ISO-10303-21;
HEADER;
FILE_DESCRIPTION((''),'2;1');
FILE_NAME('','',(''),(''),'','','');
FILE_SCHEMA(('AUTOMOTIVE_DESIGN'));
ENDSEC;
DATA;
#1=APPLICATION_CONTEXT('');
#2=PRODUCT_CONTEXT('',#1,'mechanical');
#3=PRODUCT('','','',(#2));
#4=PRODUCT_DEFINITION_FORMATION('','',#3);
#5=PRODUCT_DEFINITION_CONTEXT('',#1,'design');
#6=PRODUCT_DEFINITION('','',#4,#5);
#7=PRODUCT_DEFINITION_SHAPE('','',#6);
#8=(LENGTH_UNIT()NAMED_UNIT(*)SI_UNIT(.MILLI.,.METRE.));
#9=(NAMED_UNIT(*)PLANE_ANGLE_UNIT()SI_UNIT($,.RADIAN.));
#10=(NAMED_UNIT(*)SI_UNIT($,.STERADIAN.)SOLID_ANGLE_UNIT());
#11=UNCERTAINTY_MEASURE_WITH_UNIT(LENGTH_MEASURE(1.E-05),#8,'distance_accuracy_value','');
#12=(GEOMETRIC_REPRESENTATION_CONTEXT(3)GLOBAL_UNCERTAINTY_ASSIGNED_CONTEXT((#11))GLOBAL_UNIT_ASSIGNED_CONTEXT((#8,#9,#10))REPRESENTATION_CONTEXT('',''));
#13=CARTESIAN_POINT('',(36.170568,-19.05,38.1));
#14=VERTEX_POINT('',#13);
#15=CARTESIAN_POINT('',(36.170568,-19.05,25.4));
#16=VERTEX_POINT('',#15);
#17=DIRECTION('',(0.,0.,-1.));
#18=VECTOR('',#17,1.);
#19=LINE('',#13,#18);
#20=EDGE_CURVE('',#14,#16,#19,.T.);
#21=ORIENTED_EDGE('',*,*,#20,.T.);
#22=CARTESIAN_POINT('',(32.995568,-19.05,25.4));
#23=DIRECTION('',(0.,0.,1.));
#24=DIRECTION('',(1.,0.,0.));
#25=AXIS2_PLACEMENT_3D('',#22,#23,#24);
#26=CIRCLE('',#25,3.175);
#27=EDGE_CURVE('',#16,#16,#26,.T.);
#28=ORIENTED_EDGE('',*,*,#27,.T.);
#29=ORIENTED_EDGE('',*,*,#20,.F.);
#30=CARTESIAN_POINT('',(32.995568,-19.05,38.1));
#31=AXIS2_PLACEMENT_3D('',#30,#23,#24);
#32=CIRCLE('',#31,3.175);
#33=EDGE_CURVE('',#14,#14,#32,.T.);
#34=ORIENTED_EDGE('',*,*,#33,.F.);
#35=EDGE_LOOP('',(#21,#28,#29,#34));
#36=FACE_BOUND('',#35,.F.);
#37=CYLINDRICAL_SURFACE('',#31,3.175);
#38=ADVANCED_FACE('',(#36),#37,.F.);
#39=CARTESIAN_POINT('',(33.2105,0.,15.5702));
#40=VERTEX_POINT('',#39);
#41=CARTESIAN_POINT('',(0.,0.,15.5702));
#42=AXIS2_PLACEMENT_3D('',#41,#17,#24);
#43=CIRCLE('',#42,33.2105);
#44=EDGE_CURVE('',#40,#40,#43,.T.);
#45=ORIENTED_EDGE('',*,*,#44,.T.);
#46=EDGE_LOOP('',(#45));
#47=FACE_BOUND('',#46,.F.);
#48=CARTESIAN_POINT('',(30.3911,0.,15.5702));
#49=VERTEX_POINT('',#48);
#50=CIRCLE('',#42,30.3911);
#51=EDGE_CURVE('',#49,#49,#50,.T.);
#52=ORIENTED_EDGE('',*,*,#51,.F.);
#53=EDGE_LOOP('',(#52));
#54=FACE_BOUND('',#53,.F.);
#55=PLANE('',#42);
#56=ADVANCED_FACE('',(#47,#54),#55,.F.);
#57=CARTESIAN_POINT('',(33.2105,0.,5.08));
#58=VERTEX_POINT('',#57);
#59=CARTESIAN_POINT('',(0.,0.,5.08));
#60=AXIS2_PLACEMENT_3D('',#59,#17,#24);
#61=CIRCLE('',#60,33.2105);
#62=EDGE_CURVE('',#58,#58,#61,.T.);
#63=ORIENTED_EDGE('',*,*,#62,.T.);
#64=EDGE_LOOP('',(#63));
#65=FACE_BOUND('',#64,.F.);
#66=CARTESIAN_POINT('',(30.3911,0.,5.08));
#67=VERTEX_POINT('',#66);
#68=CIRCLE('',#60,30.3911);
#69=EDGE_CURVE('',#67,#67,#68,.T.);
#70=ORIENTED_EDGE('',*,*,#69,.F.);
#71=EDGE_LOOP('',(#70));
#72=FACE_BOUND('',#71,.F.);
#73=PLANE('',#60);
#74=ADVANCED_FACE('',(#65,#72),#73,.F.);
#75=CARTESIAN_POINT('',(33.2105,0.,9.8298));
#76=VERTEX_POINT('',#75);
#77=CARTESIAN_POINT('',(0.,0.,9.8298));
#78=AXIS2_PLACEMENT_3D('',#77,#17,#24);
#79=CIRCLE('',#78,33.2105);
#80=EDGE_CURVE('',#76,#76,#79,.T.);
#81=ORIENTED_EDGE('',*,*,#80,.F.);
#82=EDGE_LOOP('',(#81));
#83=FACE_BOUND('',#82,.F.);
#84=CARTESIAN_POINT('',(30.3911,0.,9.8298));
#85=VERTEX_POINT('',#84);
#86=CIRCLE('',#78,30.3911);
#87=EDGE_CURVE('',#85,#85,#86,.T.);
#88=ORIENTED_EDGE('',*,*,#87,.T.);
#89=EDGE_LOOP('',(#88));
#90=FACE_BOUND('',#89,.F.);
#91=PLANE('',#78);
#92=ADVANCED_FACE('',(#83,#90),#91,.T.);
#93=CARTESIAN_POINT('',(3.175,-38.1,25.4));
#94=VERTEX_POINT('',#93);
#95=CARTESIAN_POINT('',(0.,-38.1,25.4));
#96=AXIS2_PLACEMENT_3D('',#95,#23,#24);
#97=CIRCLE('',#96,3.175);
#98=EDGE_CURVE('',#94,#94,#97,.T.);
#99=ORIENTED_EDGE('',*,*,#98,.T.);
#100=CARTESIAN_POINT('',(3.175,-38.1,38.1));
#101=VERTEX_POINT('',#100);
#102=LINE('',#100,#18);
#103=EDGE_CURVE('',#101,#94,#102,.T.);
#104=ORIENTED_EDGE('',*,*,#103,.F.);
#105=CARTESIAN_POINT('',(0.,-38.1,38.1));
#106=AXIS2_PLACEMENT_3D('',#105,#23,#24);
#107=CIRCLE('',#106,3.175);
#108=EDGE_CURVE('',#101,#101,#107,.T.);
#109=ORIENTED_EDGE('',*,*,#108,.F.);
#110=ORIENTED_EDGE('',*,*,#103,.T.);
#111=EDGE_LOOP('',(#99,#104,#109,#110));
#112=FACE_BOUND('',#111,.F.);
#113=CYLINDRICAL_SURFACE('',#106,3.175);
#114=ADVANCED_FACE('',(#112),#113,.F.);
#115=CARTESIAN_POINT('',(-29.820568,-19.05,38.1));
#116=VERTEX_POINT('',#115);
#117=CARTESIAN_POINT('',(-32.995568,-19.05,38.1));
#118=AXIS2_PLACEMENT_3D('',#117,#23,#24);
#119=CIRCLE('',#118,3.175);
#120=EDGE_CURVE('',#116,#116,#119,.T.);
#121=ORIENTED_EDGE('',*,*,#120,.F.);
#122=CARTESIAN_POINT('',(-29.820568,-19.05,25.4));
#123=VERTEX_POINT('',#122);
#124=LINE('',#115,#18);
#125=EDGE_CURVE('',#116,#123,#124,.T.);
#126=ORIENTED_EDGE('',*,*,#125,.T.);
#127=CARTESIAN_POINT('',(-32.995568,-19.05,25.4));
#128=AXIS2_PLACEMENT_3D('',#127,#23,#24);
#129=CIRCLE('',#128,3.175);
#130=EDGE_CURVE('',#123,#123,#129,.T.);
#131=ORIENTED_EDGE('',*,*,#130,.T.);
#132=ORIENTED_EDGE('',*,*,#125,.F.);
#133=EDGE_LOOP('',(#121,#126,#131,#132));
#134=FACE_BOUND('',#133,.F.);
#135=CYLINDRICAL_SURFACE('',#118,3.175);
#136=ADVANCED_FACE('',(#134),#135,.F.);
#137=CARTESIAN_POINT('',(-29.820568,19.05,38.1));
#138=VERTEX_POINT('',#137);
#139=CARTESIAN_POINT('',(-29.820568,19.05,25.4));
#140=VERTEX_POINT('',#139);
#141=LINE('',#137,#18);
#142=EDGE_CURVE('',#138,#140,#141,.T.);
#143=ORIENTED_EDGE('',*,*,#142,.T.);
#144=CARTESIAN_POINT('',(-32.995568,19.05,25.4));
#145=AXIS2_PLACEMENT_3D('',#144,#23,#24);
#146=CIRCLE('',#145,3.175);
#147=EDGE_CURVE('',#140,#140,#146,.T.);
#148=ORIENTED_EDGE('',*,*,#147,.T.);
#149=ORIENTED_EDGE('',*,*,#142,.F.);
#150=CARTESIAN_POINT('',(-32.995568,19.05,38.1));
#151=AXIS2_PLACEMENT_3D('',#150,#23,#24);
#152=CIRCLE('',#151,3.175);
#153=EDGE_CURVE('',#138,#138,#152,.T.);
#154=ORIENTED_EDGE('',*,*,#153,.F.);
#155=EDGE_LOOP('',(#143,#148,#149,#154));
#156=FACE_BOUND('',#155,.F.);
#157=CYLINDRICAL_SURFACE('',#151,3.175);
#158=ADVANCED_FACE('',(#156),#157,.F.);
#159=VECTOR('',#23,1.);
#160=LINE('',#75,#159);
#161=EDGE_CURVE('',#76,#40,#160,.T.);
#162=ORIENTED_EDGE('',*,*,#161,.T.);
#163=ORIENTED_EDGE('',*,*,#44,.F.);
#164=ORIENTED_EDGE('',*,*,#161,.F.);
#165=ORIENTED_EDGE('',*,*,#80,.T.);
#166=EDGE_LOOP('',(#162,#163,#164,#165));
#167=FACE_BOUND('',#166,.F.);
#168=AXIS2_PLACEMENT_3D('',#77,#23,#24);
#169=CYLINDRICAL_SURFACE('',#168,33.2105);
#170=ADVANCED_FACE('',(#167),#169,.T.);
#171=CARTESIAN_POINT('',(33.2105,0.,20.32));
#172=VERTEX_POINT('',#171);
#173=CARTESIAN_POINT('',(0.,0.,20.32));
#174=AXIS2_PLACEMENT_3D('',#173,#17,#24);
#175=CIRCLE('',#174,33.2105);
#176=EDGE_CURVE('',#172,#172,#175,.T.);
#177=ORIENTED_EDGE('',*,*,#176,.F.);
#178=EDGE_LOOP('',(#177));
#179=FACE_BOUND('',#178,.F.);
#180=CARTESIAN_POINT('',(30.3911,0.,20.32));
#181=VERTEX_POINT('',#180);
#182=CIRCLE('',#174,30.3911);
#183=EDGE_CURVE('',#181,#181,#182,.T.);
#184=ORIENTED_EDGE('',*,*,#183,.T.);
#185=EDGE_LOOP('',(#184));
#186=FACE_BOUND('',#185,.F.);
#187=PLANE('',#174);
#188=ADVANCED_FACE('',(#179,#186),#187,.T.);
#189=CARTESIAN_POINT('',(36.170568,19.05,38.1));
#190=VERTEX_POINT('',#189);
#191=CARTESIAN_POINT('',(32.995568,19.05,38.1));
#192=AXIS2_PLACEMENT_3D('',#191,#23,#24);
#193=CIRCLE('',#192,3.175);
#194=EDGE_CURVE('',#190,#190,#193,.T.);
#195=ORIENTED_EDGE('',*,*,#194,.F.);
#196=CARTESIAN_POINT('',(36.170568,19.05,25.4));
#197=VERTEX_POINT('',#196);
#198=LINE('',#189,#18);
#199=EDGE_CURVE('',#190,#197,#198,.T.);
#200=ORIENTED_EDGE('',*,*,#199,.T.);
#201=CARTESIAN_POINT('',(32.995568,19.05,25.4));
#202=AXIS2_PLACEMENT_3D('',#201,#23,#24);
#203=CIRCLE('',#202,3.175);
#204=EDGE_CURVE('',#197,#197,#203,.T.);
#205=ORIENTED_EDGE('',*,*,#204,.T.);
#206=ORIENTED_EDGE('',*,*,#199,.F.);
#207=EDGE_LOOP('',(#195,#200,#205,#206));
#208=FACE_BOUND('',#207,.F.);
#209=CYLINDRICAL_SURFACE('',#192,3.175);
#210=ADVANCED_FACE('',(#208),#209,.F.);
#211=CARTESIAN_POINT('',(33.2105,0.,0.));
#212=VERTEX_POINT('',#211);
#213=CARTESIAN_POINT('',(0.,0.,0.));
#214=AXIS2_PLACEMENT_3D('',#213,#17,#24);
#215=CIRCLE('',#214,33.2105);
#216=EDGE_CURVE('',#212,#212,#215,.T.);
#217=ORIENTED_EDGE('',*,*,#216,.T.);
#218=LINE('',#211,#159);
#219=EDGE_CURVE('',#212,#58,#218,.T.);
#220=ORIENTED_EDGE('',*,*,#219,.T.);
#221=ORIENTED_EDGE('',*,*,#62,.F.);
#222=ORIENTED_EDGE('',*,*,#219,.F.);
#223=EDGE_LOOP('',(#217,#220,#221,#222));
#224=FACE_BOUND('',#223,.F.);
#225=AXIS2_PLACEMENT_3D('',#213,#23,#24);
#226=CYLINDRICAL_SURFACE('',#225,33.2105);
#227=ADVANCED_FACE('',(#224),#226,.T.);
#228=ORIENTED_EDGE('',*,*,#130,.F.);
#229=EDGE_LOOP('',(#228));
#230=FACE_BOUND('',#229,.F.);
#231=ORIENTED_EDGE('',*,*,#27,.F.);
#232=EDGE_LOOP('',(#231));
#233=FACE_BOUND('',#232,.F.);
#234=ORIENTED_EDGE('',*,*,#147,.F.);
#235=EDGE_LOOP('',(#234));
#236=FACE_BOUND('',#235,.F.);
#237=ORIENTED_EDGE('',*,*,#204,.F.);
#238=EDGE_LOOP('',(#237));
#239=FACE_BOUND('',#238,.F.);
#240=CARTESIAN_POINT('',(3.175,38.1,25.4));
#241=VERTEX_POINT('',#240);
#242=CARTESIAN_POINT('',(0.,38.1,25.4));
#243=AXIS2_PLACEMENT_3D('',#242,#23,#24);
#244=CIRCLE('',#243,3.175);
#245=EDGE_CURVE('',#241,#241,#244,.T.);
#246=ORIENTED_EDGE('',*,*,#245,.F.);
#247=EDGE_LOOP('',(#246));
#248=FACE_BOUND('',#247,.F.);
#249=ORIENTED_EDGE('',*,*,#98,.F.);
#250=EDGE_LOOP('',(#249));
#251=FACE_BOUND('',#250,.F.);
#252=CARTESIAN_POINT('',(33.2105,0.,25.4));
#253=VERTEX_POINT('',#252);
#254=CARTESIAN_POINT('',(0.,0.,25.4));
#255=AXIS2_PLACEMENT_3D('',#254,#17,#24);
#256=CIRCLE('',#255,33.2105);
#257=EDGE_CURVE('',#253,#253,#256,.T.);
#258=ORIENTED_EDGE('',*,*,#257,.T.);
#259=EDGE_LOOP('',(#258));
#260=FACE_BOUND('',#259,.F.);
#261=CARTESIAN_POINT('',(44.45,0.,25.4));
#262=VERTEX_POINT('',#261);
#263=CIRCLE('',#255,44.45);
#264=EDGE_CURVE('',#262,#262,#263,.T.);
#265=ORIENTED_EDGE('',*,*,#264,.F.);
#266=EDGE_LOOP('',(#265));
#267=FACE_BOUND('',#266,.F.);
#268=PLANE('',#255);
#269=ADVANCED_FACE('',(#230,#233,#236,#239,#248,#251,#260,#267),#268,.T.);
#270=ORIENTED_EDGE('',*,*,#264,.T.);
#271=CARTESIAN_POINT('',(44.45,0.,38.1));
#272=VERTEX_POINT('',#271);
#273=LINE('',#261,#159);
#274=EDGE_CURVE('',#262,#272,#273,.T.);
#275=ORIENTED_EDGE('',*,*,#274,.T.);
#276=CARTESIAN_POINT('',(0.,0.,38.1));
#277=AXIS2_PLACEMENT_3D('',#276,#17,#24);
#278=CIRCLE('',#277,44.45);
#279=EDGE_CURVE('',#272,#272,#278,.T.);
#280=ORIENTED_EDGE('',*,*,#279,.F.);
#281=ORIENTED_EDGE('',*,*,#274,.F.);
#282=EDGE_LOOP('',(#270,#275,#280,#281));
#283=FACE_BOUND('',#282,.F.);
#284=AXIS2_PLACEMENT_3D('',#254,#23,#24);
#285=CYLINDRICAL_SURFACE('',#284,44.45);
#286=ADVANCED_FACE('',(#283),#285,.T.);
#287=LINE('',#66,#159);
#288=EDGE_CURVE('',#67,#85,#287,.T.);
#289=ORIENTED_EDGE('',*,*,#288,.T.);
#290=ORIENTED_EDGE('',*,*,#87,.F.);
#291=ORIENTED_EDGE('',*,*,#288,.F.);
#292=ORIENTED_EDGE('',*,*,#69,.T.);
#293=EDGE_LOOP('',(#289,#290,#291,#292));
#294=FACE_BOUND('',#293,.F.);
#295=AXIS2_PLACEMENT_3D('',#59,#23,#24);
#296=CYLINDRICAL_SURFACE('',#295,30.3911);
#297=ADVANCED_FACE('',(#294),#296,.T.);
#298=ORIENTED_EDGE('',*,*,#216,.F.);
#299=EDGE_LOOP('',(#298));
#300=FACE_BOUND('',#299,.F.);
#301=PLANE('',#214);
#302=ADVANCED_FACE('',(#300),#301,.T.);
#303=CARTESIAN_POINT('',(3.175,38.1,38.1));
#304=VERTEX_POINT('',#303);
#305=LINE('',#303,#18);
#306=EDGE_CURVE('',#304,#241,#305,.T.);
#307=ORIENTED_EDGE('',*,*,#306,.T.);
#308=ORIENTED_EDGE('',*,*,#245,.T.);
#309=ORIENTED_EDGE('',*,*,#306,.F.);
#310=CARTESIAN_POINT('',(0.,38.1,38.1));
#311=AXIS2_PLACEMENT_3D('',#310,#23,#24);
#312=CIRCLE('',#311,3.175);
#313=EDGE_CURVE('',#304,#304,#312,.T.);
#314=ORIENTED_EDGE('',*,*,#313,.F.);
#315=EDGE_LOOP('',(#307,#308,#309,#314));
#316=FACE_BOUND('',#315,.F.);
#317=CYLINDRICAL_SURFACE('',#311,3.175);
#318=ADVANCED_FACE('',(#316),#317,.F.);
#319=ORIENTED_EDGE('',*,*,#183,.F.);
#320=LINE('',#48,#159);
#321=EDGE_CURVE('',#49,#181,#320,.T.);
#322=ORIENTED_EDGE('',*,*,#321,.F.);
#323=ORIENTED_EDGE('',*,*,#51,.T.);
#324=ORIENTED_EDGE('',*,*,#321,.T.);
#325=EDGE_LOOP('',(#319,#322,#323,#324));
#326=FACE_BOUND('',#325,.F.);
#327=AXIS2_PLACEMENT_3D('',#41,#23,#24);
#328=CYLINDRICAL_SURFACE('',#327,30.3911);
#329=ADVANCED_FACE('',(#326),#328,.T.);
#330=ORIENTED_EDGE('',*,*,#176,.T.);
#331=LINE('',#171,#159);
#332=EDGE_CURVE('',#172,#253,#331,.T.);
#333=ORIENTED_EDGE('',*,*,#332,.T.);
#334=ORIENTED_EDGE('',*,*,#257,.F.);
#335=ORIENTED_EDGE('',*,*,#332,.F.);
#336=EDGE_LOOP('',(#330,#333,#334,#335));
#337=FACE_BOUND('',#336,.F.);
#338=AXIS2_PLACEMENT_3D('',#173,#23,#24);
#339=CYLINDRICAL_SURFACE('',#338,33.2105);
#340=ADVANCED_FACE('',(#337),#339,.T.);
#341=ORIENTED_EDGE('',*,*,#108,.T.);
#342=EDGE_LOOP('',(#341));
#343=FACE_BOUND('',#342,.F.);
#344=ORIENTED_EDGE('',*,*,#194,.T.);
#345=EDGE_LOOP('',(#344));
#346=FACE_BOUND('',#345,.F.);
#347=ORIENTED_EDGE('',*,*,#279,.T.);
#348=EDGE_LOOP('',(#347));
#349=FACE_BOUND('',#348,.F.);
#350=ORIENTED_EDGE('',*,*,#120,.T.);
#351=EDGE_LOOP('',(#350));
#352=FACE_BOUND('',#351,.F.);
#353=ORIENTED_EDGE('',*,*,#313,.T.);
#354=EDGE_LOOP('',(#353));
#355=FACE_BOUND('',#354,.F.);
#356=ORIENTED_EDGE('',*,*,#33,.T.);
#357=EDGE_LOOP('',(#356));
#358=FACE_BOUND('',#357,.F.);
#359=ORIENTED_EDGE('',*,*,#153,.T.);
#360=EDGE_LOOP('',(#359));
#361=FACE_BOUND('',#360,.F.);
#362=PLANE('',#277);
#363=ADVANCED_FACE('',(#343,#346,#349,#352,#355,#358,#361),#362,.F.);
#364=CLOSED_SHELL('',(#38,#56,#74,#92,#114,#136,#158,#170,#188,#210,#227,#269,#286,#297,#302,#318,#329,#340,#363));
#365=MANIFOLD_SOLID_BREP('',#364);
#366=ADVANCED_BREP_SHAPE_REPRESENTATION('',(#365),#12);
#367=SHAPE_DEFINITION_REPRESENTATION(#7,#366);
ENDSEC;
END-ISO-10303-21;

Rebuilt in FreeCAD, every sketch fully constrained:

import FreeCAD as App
import Part
import Sketcher

V = App.Vector
Q = App.Units.Quantity


def add_polygon(sketch, points):
    """Adds a closed chain of lines whose ends are joined by coincident constraints."""
    first, n = sketch.GeometryCount, len(points)
    for a, b in zip(points, points[1:] + points[:1]):
        sketch.addGeometry(Part.LineSegment(App.Vector(*a, 0), App.Vector(*b, 0)), False)
    for i in range(n):
        sketch.addConstraint(Sketcher.Constraint("Coincident", first + i, 2, first + (i + 1) % n, 1))

doc = App.newDocument("Part")
params = doc.addObject("Spreadsheet::Sheet", "Params")
for row, (alias, value) in enumerate([
    ("sketch1_height", "1.5 in"),
    ("sketch1_height2", "0.2 in"),
    ("sketch1_height3", "0.5 in"),
    ("sketch1_width", "1.75 in"),
    ("sketch1_width2", "0.111 in"),
    ("revolution_angle", "360 deg"),
    ("sketch2_diameter", "0.25 in"),
    ("pocket1_length", "1 in"),
], start=1):
    params.set(f"A{row}", alias)
    params.set(f"B{row}", "=" + value)
    params.setAlias(f"B{row}", alias)

body = doc.addObject("PartDesign::Body", "Body")

sketch1 = body.newObject("Sketcher::SketchObject", "Sketch")
sketch1.AttachmentSupport = (doc.getObject("XZ_Plane"), [""])
sketch1.MapMode = "FlatFace"
add_polygon(sketch1, [(44.45, 38.1), (0, 38.1), (0, 0), (33.2105, 0), (33.2105, 5.08), (30.3911, 5.08), (30.3911, 9.8298), (33.2105, 9.8298), (33.2105, 15.5702), (30.3911, 15.5702), (30.3911, 20.32), (33.2105, 20.32), (33.2105, 25.4), (44.45, 25.4)])
sketch1.addConstraint(Sketcher.Constraint("Horizontal", 0))
sketch1.addConstraint(Sketcher.Constraint("Vertical", 1))
sketch1.addConstraint(Sketcher.Constraint("Horizontal", 2))
sketch1.addConstraint(Sketcher.Constraint("Vertical", 3))
sketch1.addConstraint(Sketcher.Constraint("Horizontal", 4))
sketch1.addConstraint(Sketcher.Constraint("Vertical", 5))
sketch1.addConstraint(Sketcher.Constraint("Horizontal", 6))
sketch1.addConstraint(Sketcher.Constraint("Vertical", 7))
sketch1.addConstraint(Sketcher.Constraint("Horizontal", 8))
sketch1.addConstraint(Sketcher.Constraint("Vertical", 9))
sketch1.addConstraint(Sketcher.Constraint("Horizontal", 10))
sketch1.addConstraint(Sketcher.Constraint("Vertical", 11))
sketch1.addConstraint(Sketcher.Constraint("Horizontal", 12))
sketch1.addConstraint(Sketcher.Constraint("Vertical", 13))
sketch1.addConstraint(Sketcher.Constraint("Coincident", 1, 2, -1, 1))
sketch1.addConstraint(Sketcher.Constraint("Vertical", 3, 2, 6, 2))
sketch1.addConstraint(Sketcher.Constraint("Vertical", 5, 2, 8, 2))
sketch1.addConstraint(Sketcher.Constraint("Vertical", 7, 2, 10, 2))
sketch1.addConstraint(Sketcher.Constraint("Equal", 5, 9))
sketch1.addConstraint(Sketcher.Constraint("Equal", 3, 11))
sketch1.addConstraint(Sketcher.Constraint("DistanceY", 1, 2, 1, 1, Q("1.5 in")))
sketch1.addConstraint(Sketcher.Constraint("DistanceY", 3, 1, 3, 2, Q("0.2 in")))
sketch1.addConstraint(Sketcher.Constraint("DistanceY", 13, 1, 13, 2, Q("0.5 in")))
sketch1.addConstraint(Sketcher.Constraint("DistanceX", 0, 2, 0, 1, Q("1.75 in")))
sketch1.addConstraint(Sketcher.Constraint("DistanceX", 4, 2, 4, 1, Q("0.111 in")))
sketch1.addConstraint(Sketcher.Constraint("DistanceY", 5, 1, 5, 2, Q("0.187 in")))
sketch1.addConstraint(Sketcher.Constraint("DistanceX", 2, 1, 2, 2, Q("1.3075 in")))
sketch1.setExpression("Constraints[34]", "Params.sketch1_height")
sketch1.setExpression("Constraints[35]", "Params.sketch1_height2")
sketch1.setExpression("Constraints[36]", "Params.sketch1_height3")
sketch1.setExpression("Constraints[37]", "Params.sketch1_width")
sketch1.setExpression("Constraints[38]", "Params.sketch1_width2")
revolution = body.newObject("PartDesign::Revolution", "Revolution")
revolution.Profile = sketch1
revolution.ReferenceAxis = (sketch1, ["V_Axis"])
revolution.setExpression("Angle", "Params.revolution_angle")

sketch2 = body.newObject("Sketcher::SketchObject", "Sketch001")
sketch2.AttachmentSupport = (doc.getObject("XY_Plane"), [""])
sketch2.MapMode = "FlatFace"
sketch2.AttachmentOffset = App.Placement(V(0, 0, 1.5 * 25.4), App.Rotation())
sketch2.addGeometry(Part.Circle(V(0, -38.1, 0), V(0, 0, 1), 3.175), False)
sketch2.addGeometry(Part.Circle(V(32.995568, -19.05, 0), V(0, 0, 1), 3.175), False)
sketch2.addGeometry(Part.Circle(V(32.995568, 19.05, 0), V(0, 0, 1), 3.175), False)
sketch2.addGeometry(Part.Circle(V(0, 38.1, 0), V(0, 0, 1), 3.175), False)
sketch2.addGeometry(Part.Circle(V(-32.995568, 19.05, 0), V(0, 0, 1), 3.175), False)
sketch2.addGeometry(Part.Circle(V(-32.995568, -19.05, 0), V(0, 0, 1), 3.175), False)
sketch2.addConstraint(Sketcher.Constraint("Equal", 0, 1))
sketch2.addConstraint(Sketcher.Constraint("Equal", 1, 2))
sketch2.addConstraint(Sketcher.Constraint("Equal", 2, 3))
sketch2.addConstraint(Sketcher.Constraint("Equal", 3, 4))
sketch2.addConstraint(Sketcher.Constraint("Equal", 4, 5))
sketch2.addConstraint(Sketcher.Constraint("Symmetric", 0, 3, 3, 3, -1, 1))
sketch2.addConstraint(Sketcher.Constraint("Symmetric", 1, 3, 4, 3, -1, 1))
sketch2.addConstraint(Sketcher.Constraint("Symmetric", 2, 3, 5, 3, -1, 1))
sketch2.addConstraint(Sketcher.Constraint("Symmetric", 2, 3, 4, 3, -2))
sketch2.addConstraint(Sketcher.Constraint("PointOnObject", 0, 3, -2))
sketch2.addConstraint(Sketcher.Constraint("Diameter", 0, Q("0.25 in")))
sketch2.addConstraint(Sketcher.Constraint("DistanceY", 0, 3, 3, 3, Q("3 in")))
sketch2.addConstraint(Sketcher.Constraint("DistanceY", 1, 3, 2, 3, Q("1.5 in")))
sketch2.addConstraint(Sketcher.Constraint("DistanceX", -1, 1, 1, 3, 32.995568))
sketch2.setExpression("Constraints[10]", "Params.sketch2_diameter")
pocket1 = body.newObject("PartDesign::Pocket", "Pocket")
pocket1.Profile = sketch2
pocket1.setExpression("Length", "Params.pocket1_length")

doc.recompute()
